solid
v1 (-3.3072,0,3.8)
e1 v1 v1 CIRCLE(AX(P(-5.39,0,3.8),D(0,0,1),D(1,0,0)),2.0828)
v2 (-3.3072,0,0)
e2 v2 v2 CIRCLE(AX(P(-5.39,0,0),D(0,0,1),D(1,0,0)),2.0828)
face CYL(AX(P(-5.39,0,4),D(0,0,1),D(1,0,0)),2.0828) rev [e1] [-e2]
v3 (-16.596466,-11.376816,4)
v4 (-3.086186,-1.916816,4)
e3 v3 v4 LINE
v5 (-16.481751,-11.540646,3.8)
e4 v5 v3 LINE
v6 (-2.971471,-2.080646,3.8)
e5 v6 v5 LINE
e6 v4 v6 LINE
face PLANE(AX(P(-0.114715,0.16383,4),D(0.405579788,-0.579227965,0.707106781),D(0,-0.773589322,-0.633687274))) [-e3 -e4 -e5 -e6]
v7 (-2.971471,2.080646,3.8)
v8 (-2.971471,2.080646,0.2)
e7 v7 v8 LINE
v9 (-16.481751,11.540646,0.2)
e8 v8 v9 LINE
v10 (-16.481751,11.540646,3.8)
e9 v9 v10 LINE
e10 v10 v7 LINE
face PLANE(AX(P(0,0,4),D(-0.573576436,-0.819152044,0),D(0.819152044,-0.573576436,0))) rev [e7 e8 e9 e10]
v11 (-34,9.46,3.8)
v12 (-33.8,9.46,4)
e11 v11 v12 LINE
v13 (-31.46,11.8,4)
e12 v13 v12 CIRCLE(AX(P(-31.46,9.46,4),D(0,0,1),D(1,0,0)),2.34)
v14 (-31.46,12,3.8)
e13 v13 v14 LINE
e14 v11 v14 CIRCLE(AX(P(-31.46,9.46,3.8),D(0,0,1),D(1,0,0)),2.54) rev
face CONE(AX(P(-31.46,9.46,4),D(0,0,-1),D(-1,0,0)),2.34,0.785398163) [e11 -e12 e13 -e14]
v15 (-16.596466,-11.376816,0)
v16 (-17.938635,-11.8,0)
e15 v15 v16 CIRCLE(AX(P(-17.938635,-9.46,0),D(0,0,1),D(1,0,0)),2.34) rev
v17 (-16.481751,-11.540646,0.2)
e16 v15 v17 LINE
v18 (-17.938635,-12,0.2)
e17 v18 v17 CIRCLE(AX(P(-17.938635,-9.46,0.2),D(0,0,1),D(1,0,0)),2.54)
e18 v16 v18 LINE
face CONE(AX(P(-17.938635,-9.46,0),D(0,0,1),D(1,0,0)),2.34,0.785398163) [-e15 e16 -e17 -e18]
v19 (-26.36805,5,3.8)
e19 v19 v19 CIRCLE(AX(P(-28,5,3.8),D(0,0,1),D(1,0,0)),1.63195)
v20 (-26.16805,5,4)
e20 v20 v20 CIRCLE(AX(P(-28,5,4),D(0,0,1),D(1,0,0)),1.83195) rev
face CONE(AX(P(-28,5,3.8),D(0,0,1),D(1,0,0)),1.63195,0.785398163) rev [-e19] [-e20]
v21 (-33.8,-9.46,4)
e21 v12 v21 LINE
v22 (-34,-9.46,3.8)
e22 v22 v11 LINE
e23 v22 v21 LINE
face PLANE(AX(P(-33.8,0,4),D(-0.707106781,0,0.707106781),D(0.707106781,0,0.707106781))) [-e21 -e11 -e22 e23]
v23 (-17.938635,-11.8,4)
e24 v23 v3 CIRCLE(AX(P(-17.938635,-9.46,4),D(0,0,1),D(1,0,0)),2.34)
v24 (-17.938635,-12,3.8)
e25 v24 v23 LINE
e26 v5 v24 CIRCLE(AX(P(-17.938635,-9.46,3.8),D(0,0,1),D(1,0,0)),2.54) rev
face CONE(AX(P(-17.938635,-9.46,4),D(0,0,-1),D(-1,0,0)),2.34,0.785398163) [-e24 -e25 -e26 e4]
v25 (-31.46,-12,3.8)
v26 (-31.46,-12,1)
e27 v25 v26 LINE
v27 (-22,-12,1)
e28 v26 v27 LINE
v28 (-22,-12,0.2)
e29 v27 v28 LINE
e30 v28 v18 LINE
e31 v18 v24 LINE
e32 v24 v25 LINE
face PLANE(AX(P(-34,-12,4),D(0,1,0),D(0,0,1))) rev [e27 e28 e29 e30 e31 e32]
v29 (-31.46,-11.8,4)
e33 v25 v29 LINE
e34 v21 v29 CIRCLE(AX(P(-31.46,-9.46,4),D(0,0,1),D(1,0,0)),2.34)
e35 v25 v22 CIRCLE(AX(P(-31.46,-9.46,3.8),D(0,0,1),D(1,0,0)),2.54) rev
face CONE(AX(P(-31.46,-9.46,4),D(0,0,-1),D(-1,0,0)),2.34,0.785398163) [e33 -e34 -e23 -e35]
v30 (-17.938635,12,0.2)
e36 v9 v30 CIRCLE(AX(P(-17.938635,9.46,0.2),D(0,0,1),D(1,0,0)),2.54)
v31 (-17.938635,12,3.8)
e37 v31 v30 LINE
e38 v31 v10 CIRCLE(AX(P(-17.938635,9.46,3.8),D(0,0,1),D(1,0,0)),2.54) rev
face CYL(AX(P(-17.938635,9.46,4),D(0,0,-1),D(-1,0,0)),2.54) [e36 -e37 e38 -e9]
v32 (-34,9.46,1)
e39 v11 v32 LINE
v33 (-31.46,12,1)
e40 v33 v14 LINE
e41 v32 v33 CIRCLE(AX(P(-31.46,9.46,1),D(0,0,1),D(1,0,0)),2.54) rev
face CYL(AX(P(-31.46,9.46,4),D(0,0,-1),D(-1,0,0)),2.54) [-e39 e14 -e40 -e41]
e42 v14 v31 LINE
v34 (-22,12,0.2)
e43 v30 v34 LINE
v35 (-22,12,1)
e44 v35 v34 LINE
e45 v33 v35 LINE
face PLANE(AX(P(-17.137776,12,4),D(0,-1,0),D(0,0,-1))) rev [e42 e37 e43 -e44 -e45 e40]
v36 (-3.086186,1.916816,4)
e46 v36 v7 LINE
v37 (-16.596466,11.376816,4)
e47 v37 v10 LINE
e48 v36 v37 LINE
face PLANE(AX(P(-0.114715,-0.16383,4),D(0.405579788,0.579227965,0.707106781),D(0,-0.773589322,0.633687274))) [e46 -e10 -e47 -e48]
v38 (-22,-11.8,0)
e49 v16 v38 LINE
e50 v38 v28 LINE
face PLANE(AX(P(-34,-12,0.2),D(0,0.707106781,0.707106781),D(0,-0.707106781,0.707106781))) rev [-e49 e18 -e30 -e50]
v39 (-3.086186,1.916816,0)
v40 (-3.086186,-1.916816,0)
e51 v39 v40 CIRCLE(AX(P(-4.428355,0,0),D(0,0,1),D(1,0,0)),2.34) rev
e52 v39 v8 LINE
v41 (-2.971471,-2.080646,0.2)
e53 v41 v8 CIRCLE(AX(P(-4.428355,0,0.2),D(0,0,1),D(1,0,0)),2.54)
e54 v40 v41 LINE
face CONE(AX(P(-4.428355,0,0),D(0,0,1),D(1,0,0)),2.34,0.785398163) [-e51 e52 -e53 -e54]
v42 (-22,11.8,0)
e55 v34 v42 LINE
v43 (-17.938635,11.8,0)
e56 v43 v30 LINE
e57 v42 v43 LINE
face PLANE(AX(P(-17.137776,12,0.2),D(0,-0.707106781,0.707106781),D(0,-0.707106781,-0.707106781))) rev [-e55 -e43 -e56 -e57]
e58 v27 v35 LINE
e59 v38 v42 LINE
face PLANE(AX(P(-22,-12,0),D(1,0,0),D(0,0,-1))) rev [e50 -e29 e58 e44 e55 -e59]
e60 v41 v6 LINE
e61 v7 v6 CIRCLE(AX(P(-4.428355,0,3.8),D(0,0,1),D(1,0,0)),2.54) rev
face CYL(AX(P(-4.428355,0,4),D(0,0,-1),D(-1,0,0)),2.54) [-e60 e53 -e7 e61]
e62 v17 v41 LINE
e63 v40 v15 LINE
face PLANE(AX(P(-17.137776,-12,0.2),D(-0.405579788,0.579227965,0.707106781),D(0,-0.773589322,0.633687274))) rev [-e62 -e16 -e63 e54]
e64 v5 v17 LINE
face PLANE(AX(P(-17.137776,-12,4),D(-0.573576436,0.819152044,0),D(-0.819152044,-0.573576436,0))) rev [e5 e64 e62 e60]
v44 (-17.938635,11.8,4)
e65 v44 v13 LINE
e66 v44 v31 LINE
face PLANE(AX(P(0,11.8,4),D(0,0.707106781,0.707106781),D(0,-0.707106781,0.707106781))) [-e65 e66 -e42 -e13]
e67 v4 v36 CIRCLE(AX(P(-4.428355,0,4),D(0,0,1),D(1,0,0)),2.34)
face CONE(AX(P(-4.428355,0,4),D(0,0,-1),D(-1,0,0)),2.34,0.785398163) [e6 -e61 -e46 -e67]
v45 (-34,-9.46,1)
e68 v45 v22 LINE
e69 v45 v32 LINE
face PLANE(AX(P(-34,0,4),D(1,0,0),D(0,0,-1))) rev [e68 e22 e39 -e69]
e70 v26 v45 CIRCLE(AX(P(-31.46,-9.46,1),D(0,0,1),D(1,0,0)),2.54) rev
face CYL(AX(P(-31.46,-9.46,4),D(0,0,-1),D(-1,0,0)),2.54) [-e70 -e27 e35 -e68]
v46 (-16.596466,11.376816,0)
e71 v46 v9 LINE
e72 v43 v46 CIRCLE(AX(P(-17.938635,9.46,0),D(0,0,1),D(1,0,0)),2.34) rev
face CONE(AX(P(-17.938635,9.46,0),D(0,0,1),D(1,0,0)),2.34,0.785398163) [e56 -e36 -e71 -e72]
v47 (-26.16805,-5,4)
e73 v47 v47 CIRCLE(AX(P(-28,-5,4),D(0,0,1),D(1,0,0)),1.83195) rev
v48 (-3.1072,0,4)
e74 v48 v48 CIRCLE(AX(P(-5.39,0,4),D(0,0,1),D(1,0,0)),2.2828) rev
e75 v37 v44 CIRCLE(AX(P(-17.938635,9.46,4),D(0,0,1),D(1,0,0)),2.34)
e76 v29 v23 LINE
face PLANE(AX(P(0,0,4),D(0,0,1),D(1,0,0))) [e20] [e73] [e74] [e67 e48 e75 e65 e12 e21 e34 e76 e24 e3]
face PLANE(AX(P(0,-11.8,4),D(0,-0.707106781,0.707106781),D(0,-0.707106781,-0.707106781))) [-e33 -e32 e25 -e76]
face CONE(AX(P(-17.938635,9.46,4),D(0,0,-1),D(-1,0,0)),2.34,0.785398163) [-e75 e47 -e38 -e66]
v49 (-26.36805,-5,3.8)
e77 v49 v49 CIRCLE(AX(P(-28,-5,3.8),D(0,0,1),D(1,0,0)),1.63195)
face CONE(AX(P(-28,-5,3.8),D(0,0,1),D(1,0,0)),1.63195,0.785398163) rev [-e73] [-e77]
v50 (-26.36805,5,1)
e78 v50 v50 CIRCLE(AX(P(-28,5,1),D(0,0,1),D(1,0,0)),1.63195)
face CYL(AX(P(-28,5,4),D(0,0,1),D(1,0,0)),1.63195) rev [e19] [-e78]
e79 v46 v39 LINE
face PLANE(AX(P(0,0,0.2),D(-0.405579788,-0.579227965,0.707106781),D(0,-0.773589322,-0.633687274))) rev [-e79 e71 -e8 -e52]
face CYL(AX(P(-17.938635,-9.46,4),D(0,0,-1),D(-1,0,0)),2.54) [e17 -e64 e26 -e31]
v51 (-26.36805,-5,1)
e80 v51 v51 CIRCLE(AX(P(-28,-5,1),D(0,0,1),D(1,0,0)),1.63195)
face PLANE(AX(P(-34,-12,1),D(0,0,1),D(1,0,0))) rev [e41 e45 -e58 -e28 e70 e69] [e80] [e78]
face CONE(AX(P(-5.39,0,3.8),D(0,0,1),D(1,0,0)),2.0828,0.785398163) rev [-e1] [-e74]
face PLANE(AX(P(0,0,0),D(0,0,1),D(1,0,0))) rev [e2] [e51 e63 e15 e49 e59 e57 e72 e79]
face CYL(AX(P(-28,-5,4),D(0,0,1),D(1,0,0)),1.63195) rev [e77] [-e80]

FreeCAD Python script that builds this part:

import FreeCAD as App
import Part
import Sketcher
Q = App.Units.Quantity


def edges_at(feature, points):
    """Names of the edges that pass closest to the given points."""
    edges = feature.Shape.Edges
    near = lambda p: min(range(len(edges)), key=lambda i: edges[i].distToShape(Part.Vertex(*p))[0])
    return sorted({f"Edge{near(p) + 1}" for p in points})


def add_polygon(sketch, points):
    """Adds a closed chain of lines whose ends are joined by coincident constraints."""
    first, n = sketch.GeometryCount, len(points)
    for a, b in zip(points, points[1:] + points[:1]):
        sketch.addGeometry(Part.LineSegment(App.Vector(*a, 0), App.Vector(*b, 0)), False)
    for i in range(n):
        sketch.addConstraint(Sketcher.Constraint("Coincident", first + i, 2, first + (i + 1) % n, 1))

doc = App.newDocument("Part")
body = doc.addObject("PartDesign::Body", "Body")

sketch1 = body.newObject("Sketcher::SketchObject", "Sketch")
sketch1.AttachmentSupport = (doc.getObject("XY_Plane"), [""])
sketch1.MapMode = "FlatFace"
add_polygon(sketch1, [(0, 0), (-17, 12), (-34, 12), (-34, -12), (-17, -12)])
sketch1.addConstraint([
    Sketcher.Constraint("Horizontal", 1),
    Sketcher.Constraint("Vertical", 2),
    Sketcher.Constraint("Horizontal", 3),
    Sketcher.Constraint("Coincident", 4, 2, -1, 1),
    Sketcher.Constraint("Symmetric", 0, 2, 3, 2, -1),
    Sketcher.Constraint("DistanceY", 2, 2, 2, 1, Q("24 mm")),
    Sketcher.Constraint("Angle", 0, Q("145 deg")),
    Sketcher.Constraint("DistanceX", 1, 2, -1, 1, Q("34 mm")),
])
pad1 = body.newObject("PartDesign::Pad", "Pad")
pad1.Profile = sketch1
pad1.Length = 4

sketch2 = body.newObject("Sketcher::SketchObject", "Sketch001")
sketch2.AttachmentSupport = (doc.getObject("XZ_Plane"), [""])
sketch2.MapMode = "FlatFace"
sketch2.AttachmentOffset = App.Placement(App.Vector(0, 0, -12), App.Rotation())
add_polygon(sketch2, [(-34, 0), (-34, 1), (-22, 1), (-22, 0)])
sketch2.addConstraint([
    Sketcher.Constraint("Vertical", 0),
    Sketcher.Constraint("Horizontal", 1),
    Sketcher.Constraint("Vertical", 2),
    Sketcher.Constraint("Horizontal", 3),
    Sketcher.Constraint("PointOnObject", 2, 2, -1),
    Sketcher.Constraint("DistanceX", 1, 1, 1, 2, Q("12 mm")),
    Sketcher.Constraint("DistanceY", 0, 1, 0, 2, Q("1 mm")),
    Sketcher.Constraint("DistanceX", 0, 2, -1, 1, Q("34 mm")),
])
pocket1 = body.newObject("PartDesign::Pocket", "Pocket")
pocket1.Profile = sketch2
pocket1.Type = "ThroughAll"
pocket1.Reversed = True

sketch3 = body.newObject("Sketcher::SketchObject", "Sketch002")
sketch3.AttachmentSupport = (doc.getObject("XY_Plane"), [""])
sketch3.MapMode = "FlatFace"
sketch3.AttachmentOffset = App.Placement(App.Vector(0, 0, 4), App.Rotation())
sketch3.addGeometry([
    Part.Circle(App.Vector(-28, 5, 0), App.Vector(0, 0, 1), 1.6),
    Part.Circle(App.Vector(-28, -5, 0), App.Vector(0, 0, 1), 1.6),
], False)
sketch3.addConstraint([
    Sketcher.Constraint("Equal", 0, 1),
    Sketcher.Constraint("Symmetric", 0, 3, 1, 3, -1),
    Sketcher.Constraint("DistanceX", 0, 3, -1, 1, Q("28 mm")),
    Sketcher.Constraint("DistanceY", -1, 1, 0, 3, Q("5 mm")),
    Sketcher.Constraint("Diameter", 0, Q("3.2639 mm")),
])
doc.recompute()
hole = body.newObject("PartDesign::Hole", "Hole")
hole.Profile = sketch3
hole.ThreadType = "None"
hole.Diameter = 3.2639
hole.DepthType = "Dimension"
hole.Depth = 8.382
hole.DrillPoint = "Angled"
hole.DrillPointAngle = 118

sketch4 = body.newObject("Sketcher::SketchObject", "Sketch003")
sketch4.AttachmentSupport = (doc.getObject("XY_Plane"), [""])
sketch4.MapMode = "FlatFace"
sketch4.AttachmentOffset = App.Placement(App.Vector(0, 0, 4), App.Rotation())
sketch4.addGeometry(Part.Circle(App.Vector(-5.4, 0, 0), App.Vector(0, 0, 1), 1.7), False)
sketch4.addConstraint([
    Sketcher.Constraint("PointOnObject", 0, 3, -1),
    Sketcher.Constraint("Diameter", 0, Q("3.4544 mm")),
    Sketcher.Constraint("DistanceX", 0, 3, -1, 1, Q("5.39 mm")),
])
doc.recompute()
hole2 = body.newObject("PartDesign::Hole", "Hole001")
hole2.Profile = sketch4
hole2.ThreadType = "None"
hole2.Diameter = 3.4544
hole2.DepthType = "Dimension"
hole2.Depth = 10.7188
hole2.DrillPoint = "Angled"
hole2.DrillPointAngle = 118
hole2.HoleCutType = "Counterbore"
hole2.HoleCutDiameter = 4.1656
hole2.HoleCutDepth = 8.3312
doc.recompute()

fillet = body.newObject("PartDesign::Fillet", "Fillet")
fillet.Base = (hole2, edges_at(hole2, [
    (-17.138, -12, 2),
    (-34, -12, 2.5),
    (-34, 12, 2.5),
    (-17.138, 12, 2),
    (0, 0, 2),
]))
fillet.Radius = 2.54
doc.recompute()

chamfer = body.newObject("PartDesign::Chamfer", "Chamfer")
chamfer.Base = (fillet, edges_at(fillet, [
    (-19.969, -12, 0),
    (-26.368, -5, 4),
    (-26.368, 5, 4),
    (-7.473, 0, 4),
    (-24.699, -12, 4),
    (-34, 0, 4),
    (-9.727, -6.811, 4),
    (-9.727, 6.811, 4),
    (-24.699, 12, 4),
    (-33.256, 11.256, 4),
    (-17.175, 11.882, 4),
    (-1.888, 0, 4),
    (-17.175, -11.882, 4),
    (-33.256, -11.256, 4),
    (-9.727, -6.811, 0),
    (-19.969, 12, 0),
    (-9.727, 6.811, 0),
    (-17.175, 11.882, 0),
    (-1.888, 0, 0),
    (-17.175, -11.882, 0),
]))
chamfer.Size = 0.2

doc.recompute()
